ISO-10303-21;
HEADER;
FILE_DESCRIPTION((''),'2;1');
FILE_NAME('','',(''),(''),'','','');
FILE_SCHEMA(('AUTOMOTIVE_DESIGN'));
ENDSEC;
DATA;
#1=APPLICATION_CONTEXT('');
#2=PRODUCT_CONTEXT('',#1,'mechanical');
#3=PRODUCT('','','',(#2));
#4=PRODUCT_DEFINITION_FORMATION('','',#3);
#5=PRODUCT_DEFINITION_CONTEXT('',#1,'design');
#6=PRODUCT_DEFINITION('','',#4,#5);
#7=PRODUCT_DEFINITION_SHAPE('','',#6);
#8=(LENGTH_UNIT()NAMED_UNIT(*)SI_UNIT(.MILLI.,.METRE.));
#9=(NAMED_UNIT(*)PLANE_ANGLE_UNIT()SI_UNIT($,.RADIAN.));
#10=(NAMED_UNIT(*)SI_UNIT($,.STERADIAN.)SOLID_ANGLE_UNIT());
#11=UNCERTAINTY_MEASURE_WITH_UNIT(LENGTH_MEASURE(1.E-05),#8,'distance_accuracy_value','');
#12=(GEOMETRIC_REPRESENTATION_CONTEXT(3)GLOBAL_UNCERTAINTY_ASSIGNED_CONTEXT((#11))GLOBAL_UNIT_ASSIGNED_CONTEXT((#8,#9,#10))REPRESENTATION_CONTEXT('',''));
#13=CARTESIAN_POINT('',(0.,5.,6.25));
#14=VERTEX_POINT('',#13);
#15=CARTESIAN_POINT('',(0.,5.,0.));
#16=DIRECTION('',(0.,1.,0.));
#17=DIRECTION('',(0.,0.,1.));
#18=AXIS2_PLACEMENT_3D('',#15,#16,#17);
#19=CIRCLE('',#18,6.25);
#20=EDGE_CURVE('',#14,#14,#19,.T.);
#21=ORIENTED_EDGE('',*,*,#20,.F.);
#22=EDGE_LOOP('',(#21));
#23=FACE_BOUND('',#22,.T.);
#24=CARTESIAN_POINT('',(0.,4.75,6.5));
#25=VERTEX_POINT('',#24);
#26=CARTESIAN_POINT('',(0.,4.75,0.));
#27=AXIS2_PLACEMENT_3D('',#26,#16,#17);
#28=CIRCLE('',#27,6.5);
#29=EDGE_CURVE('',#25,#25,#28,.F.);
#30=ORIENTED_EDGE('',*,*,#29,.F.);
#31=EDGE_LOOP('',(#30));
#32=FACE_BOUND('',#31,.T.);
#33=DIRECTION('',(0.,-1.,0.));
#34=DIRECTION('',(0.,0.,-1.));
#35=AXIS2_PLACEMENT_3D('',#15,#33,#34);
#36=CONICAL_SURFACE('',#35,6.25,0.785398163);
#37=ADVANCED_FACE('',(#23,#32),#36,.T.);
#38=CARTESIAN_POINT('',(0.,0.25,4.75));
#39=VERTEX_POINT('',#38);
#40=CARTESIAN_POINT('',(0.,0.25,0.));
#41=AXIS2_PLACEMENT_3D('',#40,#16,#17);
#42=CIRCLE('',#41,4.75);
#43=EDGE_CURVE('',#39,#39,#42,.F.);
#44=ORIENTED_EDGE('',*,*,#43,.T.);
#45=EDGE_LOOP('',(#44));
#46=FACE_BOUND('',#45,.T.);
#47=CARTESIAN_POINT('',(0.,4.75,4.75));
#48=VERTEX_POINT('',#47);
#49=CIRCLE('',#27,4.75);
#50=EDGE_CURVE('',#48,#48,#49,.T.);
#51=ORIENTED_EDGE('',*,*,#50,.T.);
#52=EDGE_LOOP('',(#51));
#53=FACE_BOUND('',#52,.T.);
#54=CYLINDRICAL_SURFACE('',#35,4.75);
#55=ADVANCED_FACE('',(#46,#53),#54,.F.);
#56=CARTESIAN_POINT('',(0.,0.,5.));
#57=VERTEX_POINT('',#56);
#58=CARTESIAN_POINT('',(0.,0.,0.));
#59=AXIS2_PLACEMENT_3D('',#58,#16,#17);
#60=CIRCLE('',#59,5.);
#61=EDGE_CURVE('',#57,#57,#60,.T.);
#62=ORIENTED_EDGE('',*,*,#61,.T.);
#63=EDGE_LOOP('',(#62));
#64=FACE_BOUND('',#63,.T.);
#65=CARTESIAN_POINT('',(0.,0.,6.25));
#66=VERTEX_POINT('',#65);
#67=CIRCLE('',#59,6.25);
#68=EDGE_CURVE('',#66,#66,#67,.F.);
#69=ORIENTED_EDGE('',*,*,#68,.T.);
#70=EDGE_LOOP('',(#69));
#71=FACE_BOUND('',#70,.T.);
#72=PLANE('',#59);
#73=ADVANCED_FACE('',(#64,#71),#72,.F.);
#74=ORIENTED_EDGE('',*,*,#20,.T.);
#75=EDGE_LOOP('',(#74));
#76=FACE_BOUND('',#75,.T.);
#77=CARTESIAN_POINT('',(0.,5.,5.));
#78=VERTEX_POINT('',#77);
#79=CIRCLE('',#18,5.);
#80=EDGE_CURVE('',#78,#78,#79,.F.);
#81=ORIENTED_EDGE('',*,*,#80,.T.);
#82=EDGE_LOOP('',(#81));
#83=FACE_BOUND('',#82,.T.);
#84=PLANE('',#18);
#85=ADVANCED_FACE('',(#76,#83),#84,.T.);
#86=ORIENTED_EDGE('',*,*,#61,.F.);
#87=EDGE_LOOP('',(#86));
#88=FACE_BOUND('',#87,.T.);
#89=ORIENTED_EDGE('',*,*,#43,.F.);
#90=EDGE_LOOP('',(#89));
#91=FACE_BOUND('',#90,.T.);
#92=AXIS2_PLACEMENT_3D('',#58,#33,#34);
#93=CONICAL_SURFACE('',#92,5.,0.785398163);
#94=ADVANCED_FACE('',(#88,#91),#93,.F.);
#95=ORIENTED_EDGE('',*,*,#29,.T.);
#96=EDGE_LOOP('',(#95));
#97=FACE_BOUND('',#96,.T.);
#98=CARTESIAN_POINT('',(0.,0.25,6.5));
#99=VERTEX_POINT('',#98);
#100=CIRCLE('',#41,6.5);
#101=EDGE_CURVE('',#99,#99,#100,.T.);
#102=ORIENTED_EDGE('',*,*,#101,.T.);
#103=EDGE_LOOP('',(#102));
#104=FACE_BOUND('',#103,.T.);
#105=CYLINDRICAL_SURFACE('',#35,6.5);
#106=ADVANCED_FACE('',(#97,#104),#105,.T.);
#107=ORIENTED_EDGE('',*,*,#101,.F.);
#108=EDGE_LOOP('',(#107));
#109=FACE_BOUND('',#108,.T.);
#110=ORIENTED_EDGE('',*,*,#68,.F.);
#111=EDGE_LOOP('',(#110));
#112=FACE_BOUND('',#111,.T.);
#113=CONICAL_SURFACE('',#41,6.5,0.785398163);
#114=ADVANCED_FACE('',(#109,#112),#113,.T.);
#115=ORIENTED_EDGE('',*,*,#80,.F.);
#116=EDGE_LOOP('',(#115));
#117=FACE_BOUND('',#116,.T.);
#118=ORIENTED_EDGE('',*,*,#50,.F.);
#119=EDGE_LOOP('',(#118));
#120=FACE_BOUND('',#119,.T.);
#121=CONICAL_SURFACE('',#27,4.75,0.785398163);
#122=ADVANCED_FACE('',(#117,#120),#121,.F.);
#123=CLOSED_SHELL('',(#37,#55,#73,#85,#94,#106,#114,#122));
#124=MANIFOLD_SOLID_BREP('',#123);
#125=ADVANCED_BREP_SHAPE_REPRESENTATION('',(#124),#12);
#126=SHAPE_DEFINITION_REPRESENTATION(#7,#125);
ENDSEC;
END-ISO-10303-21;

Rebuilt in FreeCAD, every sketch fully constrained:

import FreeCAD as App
import Part
import Sketcher
Q = App.Units.Quantity


def edges_at(feature, points):
    """Names of the edges that pass closest to the given points."""
    edges = feature.Shape.Edges
    near = lambda p: min(range(len(edges)), key=lambda i: edges[i].distToShape(Part.Vertex(*p))[0])
    return sorted({f"Edge{near(p) + 1}" for p in points})

doc = App.newDocument("Part")
body = doc.addObject("PartDesign::Body", "Body")

# Sketch on XZ plane
sketch1 = body.newObject("Sketcher::SketchObject", "Sketch")
sketch1.AttachmentSupport = (doc.getObject("XZ_Plane"), [""])
sketch1.MapMode = "FlatFace"
sketch1.addGeometry([
    Part.Circle(App.Vector(0, 0, 0), App.Vector(0, 0, 1), 6.5),
    Part.Circle(App.Vector(0, 0, 0), App.Vector(0, 0, 1), 4.75),
], False)
sketch1.addConstraint([
    Sketcher.Constraint("Coincident", 0, 3, -1, 1),
    Sketcher.Constraint("Coincident", 1, 3, -1, 1),
    Sketcher.Constraint("Diameter", 0, Q("13 mm")),
    Sketcher.Constraint("Diameter", 1, Q("9.5 mm")),
])
pad1 = body.newObject("PartDesign::Pad", "Pad")
pad1.Profile = sketch1
pad1.Length = 5
pad1.Reversed = True
doc.recompute()

chamfer = body.newObject("PartDesign::Chamfer", "Chamfer")
chamfer.Base = (pad1, edges_at(pad1, [
    (0, 0, -6.5),
    (0, 5, -6.5),
    (0, 0, -4.75),
    (0, 5, -4.75),
]))
chamfer.Size = 0.25

doc.recompute()
